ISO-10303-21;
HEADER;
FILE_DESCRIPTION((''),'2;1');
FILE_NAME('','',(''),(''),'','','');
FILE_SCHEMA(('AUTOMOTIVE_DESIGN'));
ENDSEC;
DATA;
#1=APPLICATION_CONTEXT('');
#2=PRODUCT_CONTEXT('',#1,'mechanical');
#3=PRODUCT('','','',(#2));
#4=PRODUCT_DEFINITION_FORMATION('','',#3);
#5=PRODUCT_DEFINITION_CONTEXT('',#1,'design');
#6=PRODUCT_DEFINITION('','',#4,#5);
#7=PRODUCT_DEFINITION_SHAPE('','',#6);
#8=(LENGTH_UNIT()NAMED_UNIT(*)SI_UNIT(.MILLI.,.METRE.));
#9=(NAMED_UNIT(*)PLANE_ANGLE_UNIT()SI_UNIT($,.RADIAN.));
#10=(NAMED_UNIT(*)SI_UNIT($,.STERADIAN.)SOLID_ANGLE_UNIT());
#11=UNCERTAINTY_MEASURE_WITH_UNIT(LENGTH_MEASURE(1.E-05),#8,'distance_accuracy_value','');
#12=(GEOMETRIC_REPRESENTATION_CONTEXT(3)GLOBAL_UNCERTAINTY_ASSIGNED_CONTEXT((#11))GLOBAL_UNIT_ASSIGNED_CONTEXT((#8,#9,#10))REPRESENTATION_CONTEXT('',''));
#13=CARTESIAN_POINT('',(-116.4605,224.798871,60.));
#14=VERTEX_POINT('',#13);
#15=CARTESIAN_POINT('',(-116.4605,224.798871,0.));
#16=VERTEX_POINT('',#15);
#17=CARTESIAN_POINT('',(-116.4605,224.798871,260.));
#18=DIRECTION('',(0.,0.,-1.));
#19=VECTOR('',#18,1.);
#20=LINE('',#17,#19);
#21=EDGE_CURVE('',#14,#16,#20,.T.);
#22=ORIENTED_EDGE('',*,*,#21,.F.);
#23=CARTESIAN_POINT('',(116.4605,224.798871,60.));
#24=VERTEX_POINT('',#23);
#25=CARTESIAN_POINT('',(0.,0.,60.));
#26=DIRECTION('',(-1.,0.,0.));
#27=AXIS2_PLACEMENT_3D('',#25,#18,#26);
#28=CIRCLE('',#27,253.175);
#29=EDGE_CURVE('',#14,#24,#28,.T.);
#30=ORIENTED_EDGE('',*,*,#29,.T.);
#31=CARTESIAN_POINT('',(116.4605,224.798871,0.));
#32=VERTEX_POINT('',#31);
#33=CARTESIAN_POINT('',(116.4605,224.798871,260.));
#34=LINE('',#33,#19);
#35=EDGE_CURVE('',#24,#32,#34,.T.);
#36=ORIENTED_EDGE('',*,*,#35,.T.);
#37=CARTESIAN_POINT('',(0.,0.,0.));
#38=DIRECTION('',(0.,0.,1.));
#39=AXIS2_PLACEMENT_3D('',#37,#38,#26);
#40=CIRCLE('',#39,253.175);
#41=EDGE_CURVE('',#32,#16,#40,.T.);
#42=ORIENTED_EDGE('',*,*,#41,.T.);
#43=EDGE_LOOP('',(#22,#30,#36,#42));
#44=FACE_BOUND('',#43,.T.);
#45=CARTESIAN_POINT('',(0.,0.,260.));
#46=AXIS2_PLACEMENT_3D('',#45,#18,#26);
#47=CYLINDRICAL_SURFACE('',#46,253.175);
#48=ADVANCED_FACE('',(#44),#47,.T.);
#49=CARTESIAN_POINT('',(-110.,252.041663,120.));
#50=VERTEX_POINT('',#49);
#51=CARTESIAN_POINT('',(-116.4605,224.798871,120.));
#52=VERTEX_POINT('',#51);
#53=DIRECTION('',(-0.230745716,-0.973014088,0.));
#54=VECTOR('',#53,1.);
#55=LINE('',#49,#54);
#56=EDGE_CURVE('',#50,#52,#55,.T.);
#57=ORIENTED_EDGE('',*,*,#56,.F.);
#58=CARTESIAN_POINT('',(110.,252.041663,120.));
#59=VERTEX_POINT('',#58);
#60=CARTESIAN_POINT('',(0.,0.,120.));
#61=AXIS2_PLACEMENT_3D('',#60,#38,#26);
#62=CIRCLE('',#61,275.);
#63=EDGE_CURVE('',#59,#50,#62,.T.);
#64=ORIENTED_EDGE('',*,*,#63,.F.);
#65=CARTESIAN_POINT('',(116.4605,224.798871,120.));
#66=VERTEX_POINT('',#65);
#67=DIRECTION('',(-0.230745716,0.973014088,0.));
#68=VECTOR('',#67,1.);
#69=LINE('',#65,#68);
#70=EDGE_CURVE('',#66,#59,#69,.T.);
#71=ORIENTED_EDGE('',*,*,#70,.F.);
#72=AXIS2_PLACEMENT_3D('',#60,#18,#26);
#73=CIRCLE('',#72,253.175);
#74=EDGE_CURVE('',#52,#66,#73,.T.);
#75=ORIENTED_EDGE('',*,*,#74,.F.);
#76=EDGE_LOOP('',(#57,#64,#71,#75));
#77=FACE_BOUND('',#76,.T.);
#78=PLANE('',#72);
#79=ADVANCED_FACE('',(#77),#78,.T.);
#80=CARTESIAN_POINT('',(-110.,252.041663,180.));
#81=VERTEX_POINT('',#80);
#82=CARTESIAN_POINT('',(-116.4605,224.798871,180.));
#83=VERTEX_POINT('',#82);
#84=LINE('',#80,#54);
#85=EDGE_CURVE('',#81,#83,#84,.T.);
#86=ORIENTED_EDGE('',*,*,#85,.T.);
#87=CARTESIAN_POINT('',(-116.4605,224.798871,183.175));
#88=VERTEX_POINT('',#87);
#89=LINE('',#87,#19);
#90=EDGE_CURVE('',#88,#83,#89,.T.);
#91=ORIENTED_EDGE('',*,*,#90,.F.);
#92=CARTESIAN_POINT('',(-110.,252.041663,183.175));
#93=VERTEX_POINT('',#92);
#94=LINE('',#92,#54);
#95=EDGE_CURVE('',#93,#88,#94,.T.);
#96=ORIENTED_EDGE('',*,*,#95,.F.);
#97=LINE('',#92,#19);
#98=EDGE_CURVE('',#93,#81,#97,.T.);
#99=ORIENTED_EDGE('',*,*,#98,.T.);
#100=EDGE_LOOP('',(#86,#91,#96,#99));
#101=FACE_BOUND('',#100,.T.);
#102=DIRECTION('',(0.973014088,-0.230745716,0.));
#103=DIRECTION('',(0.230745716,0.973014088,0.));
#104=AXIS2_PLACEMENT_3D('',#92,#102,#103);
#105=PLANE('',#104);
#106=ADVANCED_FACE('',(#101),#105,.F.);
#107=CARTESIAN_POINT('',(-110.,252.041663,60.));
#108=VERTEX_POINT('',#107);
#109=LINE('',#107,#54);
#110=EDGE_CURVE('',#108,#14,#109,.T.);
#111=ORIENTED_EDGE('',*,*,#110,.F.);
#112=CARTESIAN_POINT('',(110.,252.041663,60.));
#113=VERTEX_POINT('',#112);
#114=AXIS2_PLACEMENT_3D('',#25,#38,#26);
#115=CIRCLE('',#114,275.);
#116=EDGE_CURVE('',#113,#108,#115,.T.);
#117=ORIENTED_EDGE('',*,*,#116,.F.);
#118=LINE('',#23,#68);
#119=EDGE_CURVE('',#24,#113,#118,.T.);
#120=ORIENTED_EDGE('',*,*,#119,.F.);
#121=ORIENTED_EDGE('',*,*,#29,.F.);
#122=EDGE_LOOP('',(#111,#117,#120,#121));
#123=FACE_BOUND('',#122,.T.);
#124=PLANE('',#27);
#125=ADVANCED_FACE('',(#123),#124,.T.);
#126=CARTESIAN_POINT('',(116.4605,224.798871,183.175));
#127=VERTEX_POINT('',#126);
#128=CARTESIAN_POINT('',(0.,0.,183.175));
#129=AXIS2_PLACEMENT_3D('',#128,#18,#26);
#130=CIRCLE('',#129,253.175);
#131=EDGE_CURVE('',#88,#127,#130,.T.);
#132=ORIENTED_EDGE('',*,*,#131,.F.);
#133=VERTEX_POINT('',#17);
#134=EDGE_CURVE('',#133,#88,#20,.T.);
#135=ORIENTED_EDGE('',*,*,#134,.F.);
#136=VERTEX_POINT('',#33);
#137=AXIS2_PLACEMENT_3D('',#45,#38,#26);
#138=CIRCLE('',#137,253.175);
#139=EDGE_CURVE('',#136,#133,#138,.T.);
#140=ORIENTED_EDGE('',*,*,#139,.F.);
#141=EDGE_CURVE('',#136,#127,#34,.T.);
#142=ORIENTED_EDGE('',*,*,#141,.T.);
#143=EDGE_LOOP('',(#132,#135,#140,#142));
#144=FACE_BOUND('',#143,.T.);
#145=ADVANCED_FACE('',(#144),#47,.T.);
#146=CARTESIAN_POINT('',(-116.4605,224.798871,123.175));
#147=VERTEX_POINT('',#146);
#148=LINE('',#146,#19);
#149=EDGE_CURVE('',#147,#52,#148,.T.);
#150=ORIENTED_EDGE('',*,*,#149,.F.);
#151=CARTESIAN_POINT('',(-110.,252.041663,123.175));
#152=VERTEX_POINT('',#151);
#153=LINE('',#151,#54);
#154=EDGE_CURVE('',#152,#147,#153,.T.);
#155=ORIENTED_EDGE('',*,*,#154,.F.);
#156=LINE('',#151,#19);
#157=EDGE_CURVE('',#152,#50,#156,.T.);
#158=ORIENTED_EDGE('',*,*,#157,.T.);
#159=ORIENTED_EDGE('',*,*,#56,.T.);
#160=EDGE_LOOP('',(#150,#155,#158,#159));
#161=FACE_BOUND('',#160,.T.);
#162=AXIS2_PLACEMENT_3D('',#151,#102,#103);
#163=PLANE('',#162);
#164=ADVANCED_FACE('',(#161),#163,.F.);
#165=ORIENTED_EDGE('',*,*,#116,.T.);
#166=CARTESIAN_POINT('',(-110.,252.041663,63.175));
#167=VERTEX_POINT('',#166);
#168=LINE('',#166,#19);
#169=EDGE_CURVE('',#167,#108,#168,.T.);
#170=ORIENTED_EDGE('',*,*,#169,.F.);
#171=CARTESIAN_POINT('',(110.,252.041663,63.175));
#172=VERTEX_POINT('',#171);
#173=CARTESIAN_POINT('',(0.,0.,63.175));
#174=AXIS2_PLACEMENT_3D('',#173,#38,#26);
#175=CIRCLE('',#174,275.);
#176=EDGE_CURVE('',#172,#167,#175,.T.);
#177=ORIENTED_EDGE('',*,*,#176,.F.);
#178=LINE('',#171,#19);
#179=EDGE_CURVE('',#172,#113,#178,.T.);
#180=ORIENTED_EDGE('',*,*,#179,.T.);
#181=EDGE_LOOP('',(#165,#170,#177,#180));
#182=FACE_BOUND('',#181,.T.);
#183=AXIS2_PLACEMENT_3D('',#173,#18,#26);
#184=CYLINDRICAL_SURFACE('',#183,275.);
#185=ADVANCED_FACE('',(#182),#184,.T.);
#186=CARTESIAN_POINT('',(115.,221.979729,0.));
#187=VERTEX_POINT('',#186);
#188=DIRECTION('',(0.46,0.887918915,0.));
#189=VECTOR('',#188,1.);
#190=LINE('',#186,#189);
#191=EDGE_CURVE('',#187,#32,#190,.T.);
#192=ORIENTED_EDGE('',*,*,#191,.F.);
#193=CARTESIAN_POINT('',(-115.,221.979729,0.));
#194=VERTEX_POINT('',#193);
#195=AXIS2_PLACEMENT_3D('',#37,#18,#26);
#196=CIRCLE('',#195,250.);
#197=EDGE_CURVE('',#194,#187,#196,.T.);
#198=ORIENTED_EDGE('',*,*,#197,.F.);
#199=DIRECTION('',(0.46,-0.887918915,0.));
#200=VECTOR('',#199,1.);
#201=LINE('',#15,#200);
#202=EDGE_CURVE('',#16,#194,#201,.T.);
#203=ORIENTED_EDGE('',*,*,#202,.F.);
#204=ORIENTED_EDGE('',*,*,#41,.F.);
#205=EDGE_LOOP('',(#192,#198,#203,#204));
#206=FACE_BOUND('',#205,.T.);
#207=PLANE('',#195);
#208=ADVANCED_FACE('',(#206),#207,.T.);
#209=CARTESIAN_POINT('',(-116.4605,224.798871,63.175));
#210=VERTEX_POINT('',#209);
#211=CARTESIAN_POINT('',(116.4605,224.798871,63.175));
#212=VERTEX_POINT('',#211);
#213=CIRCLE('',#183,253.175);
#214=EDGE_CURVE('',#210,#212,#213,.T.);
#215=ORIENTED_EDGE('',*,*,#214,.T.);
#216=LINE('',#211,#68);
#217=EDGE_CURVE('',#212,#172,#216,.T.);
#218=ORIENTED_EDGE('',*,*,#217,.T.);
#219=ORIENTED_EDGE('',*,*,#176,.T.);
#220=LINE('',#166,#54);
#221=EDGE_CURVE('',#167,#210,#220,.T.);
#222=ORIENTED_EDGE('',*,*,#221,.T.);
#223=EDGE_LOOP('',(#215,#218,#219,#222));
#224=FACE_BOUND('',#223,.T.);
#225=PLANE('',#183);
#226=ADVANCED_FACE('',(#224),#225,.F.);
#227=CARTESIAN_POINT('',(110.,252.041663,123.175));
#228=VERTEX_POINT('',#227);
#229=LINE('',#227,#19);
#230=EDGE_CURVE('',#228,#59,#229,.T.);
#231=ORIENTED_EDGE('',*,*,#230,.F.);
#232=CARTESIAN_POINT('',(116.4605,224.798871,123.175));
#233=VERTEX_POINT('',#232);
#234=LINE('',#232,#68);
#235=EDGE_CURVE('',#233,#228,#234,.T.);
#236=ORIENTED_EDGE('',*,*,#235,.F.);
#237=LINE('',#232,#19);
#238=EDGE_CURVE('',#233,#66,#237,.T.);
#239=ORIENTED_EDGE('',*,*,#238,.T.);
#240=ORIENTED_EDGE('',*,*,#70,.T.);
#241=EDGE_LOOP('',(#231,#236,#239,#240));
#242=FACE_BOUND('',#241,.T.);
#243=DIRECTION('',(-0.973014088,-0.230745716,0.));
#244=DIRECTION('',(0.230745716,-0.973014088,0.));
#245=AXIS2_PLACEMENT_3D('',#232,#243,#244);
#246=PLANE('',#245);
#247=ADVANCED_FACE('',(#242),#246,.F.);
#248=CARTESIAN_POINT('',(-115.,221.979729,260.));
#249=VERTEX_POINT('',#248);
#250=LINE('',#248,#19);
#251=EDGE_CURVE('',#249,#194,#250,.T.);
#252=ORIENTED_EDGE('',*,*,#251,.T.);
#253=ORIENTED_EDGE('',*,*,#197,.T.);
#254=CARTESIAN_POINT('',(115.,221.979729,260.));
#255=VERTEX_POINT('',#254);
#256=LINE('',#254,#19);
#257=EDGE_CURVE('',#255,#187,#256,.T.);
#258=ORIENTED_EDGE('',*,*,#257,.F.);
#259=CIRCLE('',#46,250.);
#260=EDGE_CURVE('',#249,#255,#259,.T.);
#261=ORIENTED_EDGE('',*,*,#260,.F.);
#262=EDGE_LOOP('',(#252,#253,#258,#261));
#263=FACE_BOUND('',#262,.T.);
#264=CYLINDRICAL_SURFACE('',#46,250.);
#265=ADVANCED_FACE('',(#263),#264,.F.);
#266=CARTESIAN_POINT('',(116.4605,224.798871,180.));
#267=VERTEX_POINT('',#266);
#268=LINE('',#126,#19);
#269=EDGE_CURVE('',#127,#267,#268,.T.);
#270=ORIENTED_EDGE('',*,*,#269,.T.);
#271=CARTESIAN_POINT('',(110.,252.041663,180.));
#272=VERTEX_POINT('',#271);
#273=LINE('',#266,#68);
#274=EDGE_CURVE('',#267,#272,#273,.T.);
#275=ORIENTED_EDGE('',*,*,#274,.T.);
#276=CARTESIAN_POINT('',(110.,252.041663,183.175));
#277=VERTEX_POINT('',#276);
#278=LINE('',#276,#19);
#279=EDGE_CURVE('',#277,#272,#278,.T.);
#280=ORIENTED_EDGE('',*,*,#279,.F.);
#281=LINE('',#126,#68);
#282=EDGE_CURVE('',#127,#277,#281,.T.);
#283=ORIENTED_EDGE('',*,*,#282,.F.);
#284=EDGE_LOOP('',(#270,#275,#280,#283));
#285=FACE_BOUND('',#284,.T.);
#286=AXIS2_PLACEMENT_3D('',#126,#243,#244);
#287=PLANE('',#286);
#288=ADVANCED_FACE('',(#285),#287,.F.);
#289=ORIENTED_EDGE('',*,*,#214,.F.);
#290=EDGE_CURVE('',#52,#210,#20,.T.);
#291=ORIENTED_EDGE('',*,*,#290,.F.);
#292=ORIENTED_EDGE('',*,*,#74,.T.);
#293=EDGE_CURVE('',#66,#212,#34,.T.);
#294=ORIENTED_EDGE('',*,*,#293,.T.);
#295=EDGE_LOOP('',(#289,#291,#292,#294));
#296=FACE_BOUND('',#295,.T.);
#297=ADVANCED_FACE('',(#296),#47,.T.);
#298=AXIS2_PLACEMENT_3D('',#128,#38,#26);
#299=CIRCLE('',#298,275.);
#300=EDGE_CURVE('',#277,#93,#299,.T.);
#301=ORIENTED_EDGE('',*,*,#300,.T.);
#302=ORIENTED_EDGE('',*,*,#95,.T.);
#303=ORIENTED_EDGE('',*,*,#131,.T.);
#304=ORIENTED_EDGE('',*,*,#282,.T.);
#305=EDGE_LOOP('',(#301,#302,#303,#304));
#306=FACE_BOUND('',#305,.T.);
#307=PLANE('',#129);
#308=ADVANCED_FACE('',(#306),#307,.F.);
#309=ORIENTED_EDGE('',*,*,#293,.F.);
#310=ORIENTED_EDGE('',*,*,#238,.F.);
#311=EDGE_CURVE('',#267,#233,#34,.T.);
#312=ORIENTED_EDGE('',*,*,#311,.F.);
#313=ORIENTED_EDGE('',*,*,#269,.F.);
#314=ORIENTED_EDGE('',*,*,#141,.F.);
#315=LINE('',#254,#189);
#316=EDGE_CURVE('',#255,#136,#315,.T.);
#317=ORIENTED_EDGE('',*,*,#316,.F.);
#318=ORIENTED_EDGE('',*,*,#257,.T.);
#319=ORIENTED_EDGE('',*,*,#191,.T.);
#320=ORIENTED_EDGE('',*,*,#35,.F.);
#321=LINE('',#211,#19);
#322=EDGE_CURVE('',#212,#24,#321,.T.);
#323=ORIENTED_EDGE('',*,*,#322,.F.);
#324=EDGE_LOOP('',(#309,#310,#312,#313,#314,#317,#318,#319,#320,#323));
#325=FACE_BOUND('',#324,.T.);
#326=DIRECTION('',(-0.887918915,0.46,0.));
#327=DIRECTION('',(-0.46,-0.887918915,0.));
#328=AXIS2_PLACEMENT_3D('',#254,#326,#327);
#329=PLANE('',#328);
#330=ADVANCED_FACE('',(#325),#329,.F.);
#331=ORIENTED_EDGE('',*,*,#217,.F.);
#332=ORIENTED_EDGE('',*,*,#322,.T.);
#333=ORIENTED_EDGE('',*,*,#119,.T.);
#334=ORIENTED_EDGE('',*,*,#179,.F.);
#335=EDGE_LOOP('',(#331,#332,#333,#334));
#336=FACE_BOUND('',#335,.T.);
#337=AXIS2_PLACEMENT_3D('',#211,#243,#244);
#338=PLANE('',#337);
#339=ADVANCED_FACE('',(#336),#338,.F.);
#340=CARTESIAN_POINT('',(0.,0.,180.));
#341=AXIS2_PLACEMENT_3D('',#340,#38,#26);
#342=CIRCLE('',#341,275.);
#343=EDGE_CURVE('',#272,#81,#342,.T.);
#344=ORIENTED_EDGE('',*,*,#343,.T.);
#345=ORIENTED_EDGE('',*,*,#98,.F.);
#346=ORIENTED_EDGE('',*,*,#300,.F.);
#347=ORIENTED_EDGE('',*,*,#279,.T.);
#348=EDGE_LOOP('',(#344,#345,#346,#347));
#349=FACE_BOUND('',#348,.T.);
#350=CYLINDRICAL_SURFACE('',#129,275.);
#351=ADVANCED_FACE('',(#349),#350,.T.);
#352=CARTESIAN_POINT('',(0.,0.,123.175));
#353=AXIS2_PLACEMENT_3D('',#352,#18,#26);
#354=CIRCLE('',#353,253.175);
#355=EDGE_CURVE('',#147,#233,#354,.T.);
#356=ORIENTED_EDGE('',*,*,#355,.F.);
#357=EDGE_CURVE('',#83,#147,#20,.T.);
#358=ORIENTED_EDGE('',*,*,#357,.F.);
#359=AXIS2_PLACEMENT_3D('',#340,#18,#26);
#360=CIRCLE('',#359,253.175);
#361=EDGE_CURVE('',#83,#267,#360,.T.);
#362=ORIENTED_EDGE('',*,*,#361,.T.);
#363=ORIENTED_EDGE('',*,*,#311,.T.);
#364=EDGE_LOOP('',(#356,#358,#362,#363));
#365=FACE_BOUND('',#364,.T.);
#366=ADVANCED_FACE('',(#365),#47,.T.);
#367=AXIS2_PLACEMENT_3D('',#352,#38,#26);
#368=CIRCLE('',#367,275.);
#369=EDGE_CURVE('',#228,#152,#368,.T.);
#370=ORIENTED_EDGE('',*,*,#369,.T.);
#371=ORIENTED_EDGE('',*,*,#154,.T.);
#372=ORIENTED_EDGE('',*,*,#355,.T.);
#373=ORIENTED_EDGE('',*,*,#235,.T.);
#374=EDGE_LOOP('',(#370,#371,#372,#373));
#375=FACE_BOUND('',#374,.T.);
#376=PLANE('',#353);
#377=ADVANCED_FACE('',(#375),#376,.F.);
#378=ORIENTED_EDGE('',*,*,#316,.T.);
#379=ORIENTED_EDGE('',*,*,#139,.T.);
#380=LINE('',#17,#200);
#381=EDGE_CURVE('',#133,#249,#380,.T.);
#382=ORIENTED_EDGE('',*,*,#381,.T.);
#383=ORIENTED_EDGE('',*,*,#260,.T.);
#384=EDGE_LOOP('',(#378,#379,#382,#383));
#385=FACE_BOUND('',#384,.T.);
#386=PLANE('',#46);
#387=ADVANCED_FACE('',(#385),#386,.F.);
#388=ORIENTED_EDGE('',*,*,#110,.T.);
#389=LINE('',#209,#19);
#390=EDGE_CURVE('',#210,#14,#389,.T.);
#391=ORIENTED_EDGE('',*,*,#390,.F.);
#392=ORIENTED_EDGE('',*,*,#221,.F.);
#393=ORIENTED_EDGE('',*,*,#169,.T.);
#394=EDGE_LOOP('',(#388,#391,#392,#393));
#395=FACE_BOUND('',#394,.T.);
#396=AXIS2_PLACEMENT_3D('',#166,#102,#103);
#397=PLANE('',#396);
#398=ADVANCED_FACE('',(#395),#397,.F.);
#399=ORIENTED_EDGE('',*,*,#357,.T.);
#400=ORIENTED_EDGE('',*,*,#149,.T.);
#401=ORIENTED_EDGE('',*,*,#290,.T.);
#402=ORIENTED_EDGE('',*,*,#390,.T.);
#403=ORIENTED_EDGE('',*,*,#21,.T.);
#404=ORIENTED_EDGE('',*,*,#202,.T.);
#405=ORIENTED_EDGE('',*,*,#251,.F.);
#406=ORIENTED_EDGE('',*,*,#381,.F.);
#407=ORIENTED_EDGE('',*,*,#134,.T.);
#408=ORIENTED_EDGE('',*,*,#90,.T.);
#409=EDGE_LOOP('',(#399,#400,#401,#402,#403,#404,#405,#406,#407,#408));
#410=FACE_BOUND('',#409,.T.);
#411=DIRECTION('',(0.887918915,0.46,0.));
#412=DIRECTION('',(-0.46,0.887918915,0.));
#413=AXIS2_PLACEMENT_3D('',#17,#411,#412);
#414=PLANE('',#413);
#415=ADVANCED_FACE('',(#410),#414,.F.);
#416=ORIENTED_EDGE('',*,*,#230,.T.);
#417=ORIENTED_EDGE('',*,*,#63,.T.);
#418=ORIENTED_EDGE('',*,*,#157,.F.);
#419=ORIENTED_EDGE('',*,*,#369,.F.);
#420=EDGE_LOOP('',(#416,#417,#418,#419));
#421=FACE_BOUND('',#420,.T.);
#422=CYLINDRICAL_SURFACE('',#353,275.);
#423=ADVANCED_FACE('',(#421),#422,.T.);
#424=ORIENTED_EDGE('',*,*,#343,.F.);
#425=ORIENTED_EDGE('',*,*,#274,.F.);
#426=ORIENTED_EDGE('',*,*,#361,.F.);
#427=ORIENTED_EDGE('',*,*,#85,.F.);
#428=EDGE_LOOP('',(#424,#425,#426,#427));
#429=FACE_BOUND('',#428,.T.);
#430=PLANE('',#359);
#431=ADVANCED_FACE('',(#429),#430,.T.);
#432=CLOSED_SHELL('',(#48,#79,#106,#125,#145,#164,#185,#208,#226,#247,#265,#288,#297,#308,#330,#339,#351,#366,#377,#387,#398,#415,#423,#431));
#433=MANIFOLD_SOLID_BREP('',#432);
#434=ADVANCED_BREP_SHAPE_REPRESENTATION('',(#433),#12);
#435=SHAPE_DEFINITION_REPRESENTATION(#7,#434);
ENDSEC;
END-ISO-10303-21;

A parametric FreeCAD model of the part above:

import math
import FreeCAD as App
import Part
import Sketcher
from FreeCAD import Vector

doc = App.newDocument("Part")
body = doc.addObject("PartDesign::Body", "Body")

sketch1 = body.newObject("Sketcher::SketchObject", "Sketch")
sketch1.AttachmentSupport = (doc.getObject("XY_Plane"), [""])
sketch1.MapMode = "FlatFace"
sketch1.addGeometry(Part.LineSegment(Vector(-116.4605, 224.798871, 0), Vector(-115, 221.979729, 0)), False)
sketch1.addGeometry(Part.ArcOfCircle(Part.Circle(Vector(0, 0, 0), Vector(0, 0, 1), 250), math.radians(62.612892), math.radians(117.387108)), False)
sketch1.addGeometry(Part.LineSegment(Vector(115, 221.979729, 0), Vector(116.4605, 224.798871, 0)), False)
sketch1.addGeometry(Part.ArcOfCircle(Part.Circle(Vector(0, 0, 0), Vector(0, 0, 1), 253.175), math.radians(62.612892), math.radians(117.387108)), False)
sketch1.addConstraint(Sketcher.Constraint("Coincident", 0, 2, 1, 2))
sketch1.addConstraint(Sketcher.Constraint("Coincident", 1, 1, 2, 1))
sketch1.addConstraint(Sketcher.Constraint("Coincident", 2, 2, 3, 1))
sketch1.addConstraint(Sketcher.Constraint("Coincident", 3, 2, 0, 1))
sketch1.addConstraint(Sketcher.Constraint("Coincident", 1, 3, -1, 1))
sketch1.addConstraint(Sketcher.Constraint("Coincident", 3, 3, -1, 1))
sketch1.addConstraint(Sketcher.Constraint("Horizontal", 0, 2, 1, 1))
sketch1.addConstraint(Sketcher.Constraint("Horizontal", 2, 2, 3, 2))
sketch1.addConstraint(Sketcher.Constraint("Radius", 1, 250.0))
sketch1.addConstraint(Sketcher.Constraint("DistanceX", 0, 2, -1, 1, 115.0))
sketch1.addConstraint(Sketcher.Constraint("Radius", 3, 253.175))
sketch1.addConstraint(Sketcher.Constraint("DistanceX", 3, 2, 2, 2, 232.921))
pad1 = body.newObject("PartDesign::Pad", "Pad")
pad1.Profile = sketch1
pad1.Length = 260

sketch2 = body.newObject("Sketcher::SketchObject", "Sketch001")
sketch2.AttachmentSupport = (doc.getObject("XY_Plane"), [""])
sketch2.MapMode = "FlatFace"
sketch2.AttachmentOffset = App.Placement(Vector(0, 0, 60), App.Rotation())
sketch2.addGeometry(Part.LineSegment(Vector(-110, 252.041663, 0), Vector(-116.4605, 224.798871, 0)), False)
sketch2.addGeometry(Part.ArcOfCircle(Part.Circle(Vector(0, 0, 0), Vector(0, 0, 1), 253.175), math.radians(62.612892), math.radians(117.387108)), False)
sketch2.addGeometry(Part.LineSegment(Vector(116.4605, 224.798871, 0), Vector(110, 252.041663, 0)), False)
sketch2.addGeometry(Part.ArcOfCircle(Part.Circle(Vector(0, 0, 0), Vector(0, 0, 1), 275), math.radians(66.421822), math.radians(113.578178)), False)
sketch2.addConstraint(Sketcher.Constraint("Coincident", 0, 2, 1, 2))
sketch2.addConstraint(Sketcher.Constraint("Coincident", 1, 1, 2, 1))
sketch2.addConstraint(Sketcher.Constraint("Coincident", 2, 2, 3, 1))
sketch2.addConstraint(Sketcher.Constraint("Coincident", 3, 2, 0, 1))
sketch2.addConstraint(Sketcher.Constraint("Coincident", 1, 3, -1, 1))
sketch2.addConstraint(Sketcher.Constraint("Coincident", 3, 3, -1, 1))
sketch2.addConstraint(Sketcher.Constraint("Horizontal", 0, 2, 1, 1))
sketch2.addConstraint(Sketcher.Constraint("Horizontal", 2, 2, 3, 2))
sketch2.addConstraint(Sketcher.Constraint("Radius", 3, 275.0))
sketch2.addConstraint(Sketcher.Constraint("DistanceX", -1, 1, 2, 2, 110.0))
sketch2.addConstraint(Sketcher.Constraint("Radius", 1, 253.175))
sketch2.addConstraint(Sketcher.Constraint("DistanceX", 0, 2, 1, 1, 232.921))
pad2 = body.newObject("PartDesign::Pad", "Pad001")
pad2.Profile = sketch2
pad2.Length = 3.175
doc.recompute()

linearpattern = body.newObject("PartDesign::LinearPattern", "LinearPattern")
linearpattern.Originals = [pad2]
linearpattern.Direction = (doc.getObject("Z_Axis"), [""])
linearpattern.Mode = "offset"
linearpattern.Offset = 60
linearpattern.Occurrences = 3
body.Tip = linearpattern

doc.recompute()
